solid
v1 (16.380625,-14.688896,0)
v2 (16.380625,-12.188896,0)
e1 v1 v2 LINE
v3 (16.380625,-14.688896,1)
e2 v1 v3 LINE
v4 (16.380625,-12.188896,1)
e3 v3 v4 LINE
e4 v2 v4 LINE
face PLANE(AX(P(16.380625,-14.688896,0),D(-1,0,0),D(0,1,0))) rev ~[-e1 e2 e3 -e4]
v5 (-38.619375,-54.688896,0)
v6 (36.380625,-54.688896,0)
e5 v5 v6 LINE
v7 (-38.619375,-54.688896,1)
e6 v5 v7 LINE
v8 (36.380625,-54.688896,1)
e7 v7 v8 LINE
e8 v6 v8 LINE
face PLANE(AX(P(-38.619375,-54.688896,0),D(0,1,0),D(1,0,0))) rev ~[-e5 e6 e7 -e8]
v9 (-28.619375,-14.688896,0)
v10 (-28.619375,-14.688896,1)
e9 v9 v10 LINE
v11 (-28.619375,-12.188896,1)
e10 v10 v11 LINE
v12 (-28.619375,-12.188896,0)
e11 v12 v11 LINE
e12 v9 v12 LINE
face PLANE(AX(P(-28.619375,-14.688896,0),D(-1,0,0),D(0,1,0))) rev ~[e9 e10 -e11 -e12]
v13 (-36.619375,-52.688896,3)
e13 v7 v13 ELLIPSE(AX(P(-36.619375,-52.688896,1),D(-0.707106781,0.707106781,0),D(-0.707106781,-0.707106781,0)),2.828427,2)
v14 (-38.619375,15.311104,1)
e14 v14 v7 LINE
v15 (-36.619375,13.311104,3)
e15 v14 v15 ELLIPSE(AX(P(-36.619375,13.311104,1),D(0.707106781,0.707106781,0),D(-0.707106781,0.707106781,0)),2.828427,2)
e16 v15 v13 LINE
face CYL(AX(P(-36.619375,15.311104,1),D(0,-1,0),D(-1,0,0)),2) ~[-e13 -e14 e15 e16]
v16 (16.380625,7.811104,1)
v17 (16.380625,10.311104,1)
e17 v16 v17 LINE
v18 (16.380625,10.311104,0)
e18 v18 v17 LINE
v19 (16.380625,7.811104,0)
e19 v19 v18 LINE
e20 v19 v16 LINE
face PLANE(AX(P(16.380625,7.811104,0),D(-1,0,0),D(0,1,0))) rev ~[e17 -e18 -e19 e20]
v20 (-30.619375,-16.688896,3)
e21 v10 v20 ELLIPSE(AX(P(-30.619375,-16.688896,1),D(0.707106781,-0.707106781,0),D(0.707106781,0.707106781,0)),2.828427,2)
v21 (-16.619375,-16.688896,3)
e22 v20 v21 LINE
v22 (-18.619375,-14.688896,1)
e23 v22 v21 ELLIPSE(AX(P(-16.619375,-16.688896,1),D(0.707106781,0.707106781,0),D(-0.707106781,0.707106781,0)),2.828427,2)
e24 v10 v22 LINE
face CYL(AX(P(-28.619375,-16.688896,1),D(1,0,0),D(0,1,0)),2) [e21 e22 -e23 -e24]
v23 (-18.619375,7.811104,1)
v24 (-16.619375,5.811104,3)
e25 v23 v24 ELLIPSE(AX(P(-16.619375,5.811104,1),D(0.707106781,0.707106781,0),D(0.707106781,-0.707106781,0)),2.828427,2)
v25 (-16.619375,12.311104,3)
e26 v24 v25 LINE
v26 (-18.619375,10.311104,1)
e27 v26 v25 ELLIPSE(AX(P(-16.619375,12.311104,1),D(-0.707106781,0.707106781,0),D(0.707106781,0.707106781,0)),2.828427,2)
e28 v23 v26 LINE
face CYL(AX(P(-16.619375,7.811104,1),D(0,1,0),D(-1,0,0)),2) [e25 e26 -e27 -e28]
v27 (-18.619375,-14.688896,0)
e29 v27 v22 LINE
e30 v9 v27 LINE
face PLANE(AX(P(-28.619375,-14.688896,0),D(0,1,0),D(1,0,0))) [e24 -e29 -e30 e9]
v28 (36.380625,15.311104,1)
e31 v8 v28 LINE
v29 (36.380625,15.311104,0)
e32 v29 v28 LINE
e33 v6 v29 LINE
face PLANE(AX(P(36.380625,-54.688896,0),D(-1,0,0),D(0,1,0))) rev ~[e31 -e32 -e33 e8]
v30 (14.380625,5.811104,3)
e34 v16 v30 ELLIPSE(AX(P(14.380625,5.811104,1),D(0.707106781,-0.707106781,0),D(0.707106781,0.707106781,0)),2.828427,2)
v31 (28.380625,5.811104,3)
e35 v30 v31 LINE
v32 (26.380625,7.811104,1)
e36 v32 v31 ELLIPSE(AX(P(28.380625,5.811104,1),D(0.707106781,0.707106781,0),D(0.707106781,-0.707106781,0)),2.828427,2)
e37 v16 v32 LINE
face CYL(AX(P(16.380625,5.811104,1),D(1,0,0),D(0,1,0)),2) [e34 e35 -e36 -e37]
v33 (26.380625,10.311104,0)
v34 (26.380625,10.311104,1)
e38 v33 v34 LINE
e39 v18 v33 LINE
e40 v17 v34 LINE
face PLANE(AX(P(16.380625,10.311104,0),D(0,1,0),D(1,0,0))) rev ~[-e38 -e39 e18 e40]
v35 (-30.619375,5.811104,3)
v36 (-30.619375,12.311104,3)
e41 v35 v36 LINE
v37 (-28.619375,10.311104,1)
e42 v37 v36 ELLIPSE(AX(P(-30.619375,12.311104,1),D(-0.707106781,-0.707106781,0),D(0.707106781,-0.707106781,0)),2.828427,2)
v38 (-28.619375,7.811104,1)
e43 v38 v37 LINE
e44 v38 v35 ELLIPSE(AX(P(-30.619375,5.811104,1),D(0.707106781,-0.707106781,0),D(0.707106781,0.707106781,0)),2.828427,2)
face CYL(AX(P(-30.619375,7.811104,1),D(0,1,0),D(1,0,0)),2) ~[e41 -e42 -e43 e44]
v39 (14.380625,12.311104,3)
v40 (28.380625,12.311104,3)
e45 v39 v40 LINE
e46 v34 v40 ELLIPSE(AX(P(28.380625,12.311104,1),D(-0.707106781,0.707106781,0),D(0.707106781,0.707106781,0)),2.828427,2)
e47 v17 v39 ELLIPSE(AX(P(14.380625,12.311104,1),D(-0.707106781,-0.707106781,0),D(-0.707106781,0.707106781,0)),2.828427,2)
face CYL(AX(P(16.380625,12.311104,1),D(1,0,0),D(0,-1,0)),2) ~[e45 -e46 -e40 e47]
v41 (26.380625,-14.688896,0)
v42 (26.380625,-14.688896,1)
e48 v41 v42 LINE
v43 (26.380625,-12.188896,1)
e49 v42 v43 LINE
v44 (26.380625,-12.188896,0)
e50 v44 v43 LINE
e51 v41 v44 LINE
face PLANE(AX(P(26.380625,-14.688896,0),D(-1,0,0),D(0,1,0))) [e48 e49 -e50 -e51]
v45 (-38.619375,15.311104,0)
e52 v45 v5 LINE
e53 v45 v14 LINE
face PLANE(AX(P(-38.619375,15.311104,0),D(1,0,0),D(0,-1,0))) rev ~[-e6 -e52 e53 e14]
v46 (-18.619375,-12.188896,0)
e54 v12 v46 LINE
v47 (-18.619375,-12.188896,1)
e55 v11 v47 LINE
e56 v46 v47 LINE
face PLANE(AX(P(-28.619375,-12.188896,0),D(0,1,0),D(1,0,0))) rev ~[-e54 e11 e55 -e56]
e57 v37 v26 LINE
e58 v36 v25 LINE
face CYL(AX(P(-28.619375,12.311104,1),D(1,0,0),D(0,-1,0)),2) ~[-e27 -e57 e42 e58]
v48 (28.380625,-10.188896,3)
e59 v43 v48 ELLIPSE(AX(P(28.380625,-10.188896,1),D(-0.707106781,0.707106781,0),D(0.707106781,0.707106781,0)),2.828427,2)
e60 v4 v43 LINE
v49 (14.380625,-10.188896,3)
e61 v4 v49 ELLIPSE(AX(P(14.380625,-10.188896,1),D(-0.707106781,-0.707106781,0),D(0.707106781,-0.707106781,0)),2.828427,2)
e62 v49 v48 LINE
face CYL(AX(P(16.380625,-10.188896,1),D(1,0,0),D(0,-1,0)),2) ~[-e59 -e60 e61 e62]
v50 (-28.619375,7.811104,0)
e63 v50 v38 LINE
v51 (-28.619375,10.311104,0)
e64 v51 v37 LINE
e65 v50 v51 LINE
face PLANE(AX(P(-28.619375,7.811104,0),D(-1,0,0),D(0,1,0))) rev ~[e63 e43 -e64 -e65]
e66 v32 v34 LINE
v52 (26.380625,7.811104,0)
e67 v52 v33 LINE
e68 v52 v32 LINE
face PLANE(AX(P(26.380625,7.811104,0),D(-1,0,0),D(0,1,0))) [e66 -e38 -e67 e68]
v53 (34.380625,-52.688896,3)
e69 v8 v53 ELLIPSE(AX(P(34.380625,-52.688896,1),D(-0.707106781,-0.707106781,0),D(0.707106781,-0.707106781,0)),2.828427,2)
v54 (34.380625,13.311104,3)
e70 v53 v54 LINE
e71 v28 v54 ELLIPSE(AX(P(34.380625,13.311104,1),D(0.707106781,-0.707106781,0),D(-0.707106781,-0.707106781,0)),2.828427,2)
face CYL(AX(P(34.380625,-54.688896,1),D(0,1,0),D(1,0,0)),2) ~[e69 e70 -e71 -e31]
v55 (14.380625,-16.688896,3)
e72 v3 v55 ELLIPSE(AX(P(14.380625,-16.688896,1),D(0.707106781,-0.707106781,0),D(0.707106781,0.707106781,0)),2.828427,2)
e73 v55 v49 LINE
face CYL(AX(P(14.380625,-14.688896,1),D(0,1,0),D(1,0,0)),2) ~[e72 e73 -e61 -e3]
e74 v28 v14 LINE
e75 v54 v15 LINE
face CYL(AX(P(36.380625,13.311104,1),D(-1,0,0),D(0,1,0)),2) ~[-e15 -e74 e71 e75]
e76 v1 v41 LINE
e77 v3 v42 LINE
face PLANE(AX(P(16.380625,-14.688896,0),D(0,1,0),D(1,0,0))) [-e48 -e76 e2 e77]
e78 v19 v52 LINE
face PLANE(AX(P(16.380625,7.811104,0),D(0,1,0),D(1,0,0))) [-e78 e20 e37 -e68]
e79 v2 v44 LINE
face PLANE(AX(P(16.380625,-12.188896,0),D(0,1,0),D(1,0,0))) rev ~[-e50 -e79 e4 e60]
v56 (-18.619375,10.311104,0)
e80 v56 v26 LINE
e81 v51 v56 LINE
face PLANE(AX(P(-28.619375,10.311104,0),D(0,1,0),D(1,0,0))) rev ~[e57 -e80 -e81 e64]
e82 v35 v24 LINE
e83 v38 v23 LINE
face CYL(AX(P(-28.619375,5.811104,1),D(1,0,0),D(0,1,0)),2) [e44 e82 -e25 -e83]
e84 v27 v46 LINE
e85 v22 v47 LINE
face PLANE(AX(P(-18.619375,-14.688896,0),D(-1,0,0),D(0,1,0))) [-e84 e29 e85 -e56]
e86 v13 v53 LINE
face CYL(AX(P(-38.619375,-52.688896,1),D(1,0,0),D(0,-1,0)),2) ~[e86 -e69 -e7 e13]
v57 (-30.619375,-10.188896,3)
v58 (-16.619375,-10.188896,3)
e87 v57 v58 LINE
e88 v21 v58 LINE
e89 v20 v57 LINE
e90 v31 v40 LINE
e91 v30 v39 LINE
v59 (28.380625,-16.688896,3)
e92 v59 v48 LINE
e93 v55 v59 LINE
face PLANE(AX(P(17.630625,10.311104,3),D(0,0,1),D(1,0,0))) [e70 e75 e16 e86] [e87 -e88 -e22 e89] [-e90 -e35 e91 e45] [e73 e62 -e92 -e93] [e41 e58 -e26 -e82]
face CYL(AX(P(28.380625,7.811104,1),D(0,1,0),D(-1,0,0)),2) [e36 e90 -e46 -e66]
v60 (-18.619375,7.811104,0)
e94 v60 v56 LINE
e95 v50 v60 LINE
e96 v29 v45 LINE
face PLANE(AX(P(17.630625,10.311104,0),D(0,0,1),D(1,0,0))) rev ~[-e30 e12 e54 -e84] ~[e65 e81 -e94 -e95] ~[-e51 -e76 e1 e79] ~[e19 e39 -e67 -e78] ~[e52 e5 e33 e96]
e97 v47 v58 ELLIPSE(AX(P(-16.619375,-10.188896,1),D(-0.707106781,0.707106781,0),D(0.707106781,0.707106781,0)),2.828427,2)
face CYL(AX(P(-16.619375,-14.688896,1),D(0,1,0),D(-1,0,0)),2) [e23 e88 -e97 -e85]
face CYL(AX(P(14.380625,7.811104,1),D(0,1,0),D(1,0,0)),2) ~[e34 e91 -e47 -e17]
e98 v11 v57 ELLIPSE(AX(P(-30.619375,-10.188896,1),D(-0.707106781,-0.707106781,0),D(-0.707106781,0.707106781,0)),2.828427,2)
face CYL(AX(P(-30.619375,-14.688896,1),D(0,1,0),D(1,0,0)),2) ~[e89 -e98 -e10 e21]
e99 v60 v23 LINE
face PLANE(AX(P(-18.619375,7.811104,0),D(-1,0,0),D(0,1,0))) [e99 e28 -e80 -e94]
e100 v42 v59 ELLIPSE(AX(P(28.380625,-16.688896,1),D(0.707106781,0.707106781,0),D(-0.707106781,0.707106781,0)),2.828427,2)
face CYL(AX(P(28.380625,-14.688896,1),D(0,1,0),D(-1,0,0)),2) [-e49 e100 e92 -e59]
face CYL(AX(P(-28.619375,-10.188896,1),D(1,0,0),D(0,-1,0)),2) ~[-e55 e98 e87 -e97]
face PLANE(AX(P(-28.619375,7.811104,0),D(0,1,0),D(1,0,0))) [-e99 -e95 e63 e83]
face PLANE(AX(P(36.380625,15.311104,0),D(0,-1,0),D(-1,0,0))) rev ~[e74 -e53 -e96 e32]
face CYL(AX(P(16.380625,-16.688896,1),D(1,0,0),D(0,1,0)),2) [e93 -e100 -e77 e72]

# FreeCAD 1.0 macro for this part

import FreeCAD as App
import Part
import Sketcher

V = App.Vector
Q = App.Units.Quantity


def edges_at(feature, points):
    """Names of the edges that pass closest to the given points."""
    edges = feature.Shape.Edges
    near = lambda p: min(range(len(edges)), key=lambda i: edges[i].distToShape(Part.Vertex(*p))[0])
    return sorted({f"Edge{near(p) + 1}" for p in points})

doc = App.newDocument("Part")
body = doc.addObject("PartDesign::Body", "Body")

# Sketch on XY plane
sketch1 = body.newObject("Sketcher::SketchObject", "Sketch")
sketch1.AttachmentSupport = (doc.getObject("XY_Plane"), [""])
sketch1.MapMode = "FlatFace"
sketch1.addGeometry(Part.LineSegment(V(36.380625, 15.311104, 0), V(-38.619375, 15.311104, 0)), False)
sketch1.addGeometry(Part.LineSegment(V(-38.619375, 15.311104, 0), V(-38.619375, -54.688896, 0)), False)
sketch1.addGeometry(Part.LineSegment(V(-38.619375, -54.688896, 0), V(36.380625, -54.688896, 0)), False)
sketch1.addGeometry(Part.LineSegment(V(36.380625, -54.688896, 0), V(36.380625, 15.311104, 0)), False)
sketch1.addGeometry(Part.LineSegment(V(-18.619375, -14.688896, 0), V(-28.619375, -14.688896, 0)), False)
sketch1.addGeometry(Part.LineSegment(V(-28.619375, -14.688896, 0), V(-28.619375, -12.188896, 0)), False)
sketch1.addGeometry(Part.LineSegment(V(-28.619375, -12.188896, 0), V(-18.619375, -12.188896, 0)), False)
sketch1.addGeometry(Part.LineSegment(V(-18.619375, -12.188896, 0), V(-18.619375, -14.688896, 0)), False)
sketch1.addGeometry(Part.LineSegment(V(26.380625, -14.688896, 0), V(16.380625, -14.688896, 0)), False)
sketch1.addGeometry(Part.LineSegment(V(16.380625, -14.688896, 0), V(16.380625, -12.188896, 0)), False)
sketch1.addGeometry(Part.LineSegment(V(16.380625, -12.188896, 0), V(26.380625, -12.188896, 0)), False)
sketch1.addGeometry(Part.LineSegment(V(26.380625, -12.188896, 0), V(26.380625, -14.688896, 0)), False)
sketch1.addGeometry(Part.LineSegment(V(-18.619375, 7.811104, 0), V(-28.619375, 7.811104, 0)), False)
sketch1.addGeometry(Part.LineSegment(V(-28.619375, 7.811104, 0), V(-28.619375, 10.311104, 0)), False)
sketch1.addGeometry(Part.LineSegment(V(-28.619375, 10.311104, 0), V(-18.619375, 10.311104, 0)), False)
sketch1.addGeometry(Part.LineSegment(V(-18.619375, 10.311104, 0), V(-18.619375, 7.811104, 0)), False)
sketch1.addGeometry(Part.LineSegment(V(26.380625, 7.811104, 0), V(16.380625, 7.811104, 0)), False)
sketch1.addGeometry(Part.LineSegment(V(16.380625, 7.811104, 0), V(16.380625, 10.311104, 0)), False)
sketch1.addGeometry(Part.LineSegment(V(16.380625, 10.311104, 0), V(26.380625, 10.311104, 0)), False)
sketch1.addGeometry(Part.LineSegment(V(26.380625, 10.311104, 0), V(26.380625, 7.811104, 0)), False)
sketch1.addConstraint(Sketcher.Constraint("Coincident", 0, 2, 1, 1))
sketch1.addConstraint(Sketcher.Constraint("Coincident", 1, 2, 2, 1))
sketch1.addConstraint(Sketcher.Constraint("Coincident", 2, 2, 3, 1))
sketch1.addConstraint(Sketcher.Constraint("Coincident", 3, 2, 0, 1))
sketch1.addConstraint(Sketcher.Constraint("Coincident", 4, 2, 5, 1))
sketch1.addConstraint(Sketcher.Constraint("Coincident", 5, 2, 6, 1))
sketch1.addConstraint(Sketcher.Constraint("Coincident", 6, 2, 7, 1))
sketch1.addConstraint(Sketcher.Constraint("Coincident", 7, 2, 4, 1))
sketch1.addConstraint(Sketcher.Constraint("Coincident", 8, 2, 9, 1))
sketch1.addConstraint(Sketcher.Constraint("Coincident", 9, 2, 10, 1))
sketch1.addConstraint(Sketcher.Constraint("Coincident", 10, 2, 11, 1))
sketch1.addConstraint(Sketcher.Constraint("Coincident", 11, 2, 8, 1))
sketch1.addConstraint(Sketcher.Constraint("Coincident", 12, 2, 13, 1))
sketch1.addConstraint(Sketcher.Constraint("Coincident", 13, 2, 14, 1))
sketch1.addConstraint(Sketcher.Constraint("Coincident", 14, 2, 15, 1))
sketch1.addConstraint(Sketcher.Constraint("Coincident", 15, 2, 12, 1))
sketch1.addConstraint(Sketcher.Constraint("Coincident", 16, 2, 17, 1))
sketch1.addConstraint(Sketcher.Constraint("Coincident", 17, 2, 18, 1))
sketch1.addConstraint(Sketcher.Constraint("Coincident", 18, 2, 19, 1))
sketch1.addConstraint(Sketcher.Constraint("Coincident", 19, 2, 16, 1))
sketch1.addConstraint(Sketcher.Constraint("Horizontal", 0))
sketch1.addConstraint(Sketcher.Constraint("Vertical", 1))
sketch1.addConstraint(Sketcher.Constraint("Horizontal", 2))
sketch1.addConstraint(Sketcher.Constraint("Vertical", 3))
sketch1.addConstraint(Sketcher.Constraint("Horizontal", 4))
sketch1.addConstraint(Sketcher.Constraint("Vertical", 5))
sketch1.addConstraint(Sketcher.Constraint("Horizontal", 6))
sketch1.addConstraint(Sketcher.Constraint("Vertical", 7))
sketch1.addConstraint(Sketcher.Constraint("Horizontal", 8))
sketch1.addConstraint(Sketcher.Constraint("Vertical", 9))
sketch1.addConstraint(Sketcher.Constraint("Horizontal", 10))
sketch1.addConstraint(Sketcher.Constraint("Vertical", 11))
sketch1.addConstraint(Sketcher.Constraint("Horizontal", 12))
sketch1.addConstraint(Sketcher.Constraint("Vertical", 13))
sketch1.addConstraint(Sketcher.Constraint("Horizontal", 14))
sketch1.addConstraint(Sketcher.Constraint("Vertical", 15))
sketch1.addConstraint(Sketcher.Constraint("Horizontal", 16))
sketch1.addConstraint(Sketcher.Constraint("Vertical", 17))
sketch1.addConstraint(Sketcher.Constraint("Horizontal", 18))
sketch1.addConstraint(Sketcher.Constraint("Vertical", 19))
sketch1.addConstraint(Sketcher.Constraint("Horizontal", 7, 2, 8, 2))
sketch1.addConstraint(Sketcher.Constraint("Horizontal", 6, 2, 9, 2))
sketch1.addConstraint(Sketcher.Constraint("Horizontal", 15, 2, 16, 2))
sketch1.addConstraint(Sketcher.Constraint("Horizontal", 14, 2, 17, 2))
sketch1.addConstraint(Sketcher.Constraint("Vertical", 5, 2, 12, 2))
sketch1.addConstraint(Sketcher.Constraint("Vertical", 7, 2, 14, 2))
sketch1.addConstraint(Sketcher.Constraint("Vertical", 9, 2, 16, 2))
sketch1.addConstraint(Sketcher.Constraint("Vertical", 11, 2, 18, 2))
sketch1.addConstraint(Sketcher.Constraint("Equal", 6, 8))
sketch1.addConstraint(Sketcher.Constraint("Equal", 11, 13))
sketch1.addConstraint(Sketcher.Constraint("DistanceX", 0, 2, 0, 1, Q("75 mm")))
sketch1.addConstraint(Sketcher.Constraint("DistanceX", 4, 2, 4, 1, Q("10 mm")))
sketch1.addConstraint(Sketcher.Constraint("DistanceY", 1, 2, 1, 1, Q("70 mm")))
sketch1.addConstraint(Sketcher.Constraint("DistanceY", 5, 1, 5, 2, Q("2.5 mm")))
sketch1.addConstraint(Sketcher.Constraint("DistanceX", 0, 2, 4, 2, Q("10 mm")))
sketch1.addConstraint(Sketcher.Constraint("DistanceY", 4, 2, 0, 2, Q("30 mm")))
sketch1.addConstraint(Sketcher.Constraint("DistanceX", 7, 2, 8, 2, Q("35 mm")))
sketch1.addConstraint(Sketcher.Constraint("DistanceY", 5, 2, 12, 2, Q("20 mm")))
sketch1.addConstraint(Sketcher.Constraint("DistanceX", 0, 2, -1, 1, Q("38.619375 mm")))
sketch1.addConstraint(Sketcher.Constraint("DistanceY", -1, 1, 0, 2, Q("15.311104 mm")))
pad1 = body.newObject("PartDesign::Pad", "Pad")
pad1.Profile = sketch1
pad1.Length = 3
doc.recompute()

fillet = body.newObject("PartDesign::Fillet", "Fillet")
fillet.Base = (pad1, edges_at(pad1, [
    (-1.119, 15.311, 3),
    (-38.619, -19.689, 3),
    (-23.619, 10.311, 3),
    (-23.619, 7.811, 3),
    (-18.619, 9.061, 3),
    (-28.619, 9.061, 3),
    (-1.119, -54.689, 3),
    (36.381, -19.689, 3),
    (21.381, 7.811, 3),
    (16.381, 9.061, 3),
    (21.381, 10.311, 3),
    (26.381, 9.061, 3),
    (-28.619, -13.439, 3),
    (-23.619, -12.189, 3),
    (-18.619, -13.439, 3),
    (-23.619, -14.689, 3),
    (21.381, -12.189, 3),
    (26.381, -13.439, 3),
    (21.381, -14.689, 3),
    (16.381, -13.439, 3),
]))
fillet.Radius = 2

doc.recompute()
